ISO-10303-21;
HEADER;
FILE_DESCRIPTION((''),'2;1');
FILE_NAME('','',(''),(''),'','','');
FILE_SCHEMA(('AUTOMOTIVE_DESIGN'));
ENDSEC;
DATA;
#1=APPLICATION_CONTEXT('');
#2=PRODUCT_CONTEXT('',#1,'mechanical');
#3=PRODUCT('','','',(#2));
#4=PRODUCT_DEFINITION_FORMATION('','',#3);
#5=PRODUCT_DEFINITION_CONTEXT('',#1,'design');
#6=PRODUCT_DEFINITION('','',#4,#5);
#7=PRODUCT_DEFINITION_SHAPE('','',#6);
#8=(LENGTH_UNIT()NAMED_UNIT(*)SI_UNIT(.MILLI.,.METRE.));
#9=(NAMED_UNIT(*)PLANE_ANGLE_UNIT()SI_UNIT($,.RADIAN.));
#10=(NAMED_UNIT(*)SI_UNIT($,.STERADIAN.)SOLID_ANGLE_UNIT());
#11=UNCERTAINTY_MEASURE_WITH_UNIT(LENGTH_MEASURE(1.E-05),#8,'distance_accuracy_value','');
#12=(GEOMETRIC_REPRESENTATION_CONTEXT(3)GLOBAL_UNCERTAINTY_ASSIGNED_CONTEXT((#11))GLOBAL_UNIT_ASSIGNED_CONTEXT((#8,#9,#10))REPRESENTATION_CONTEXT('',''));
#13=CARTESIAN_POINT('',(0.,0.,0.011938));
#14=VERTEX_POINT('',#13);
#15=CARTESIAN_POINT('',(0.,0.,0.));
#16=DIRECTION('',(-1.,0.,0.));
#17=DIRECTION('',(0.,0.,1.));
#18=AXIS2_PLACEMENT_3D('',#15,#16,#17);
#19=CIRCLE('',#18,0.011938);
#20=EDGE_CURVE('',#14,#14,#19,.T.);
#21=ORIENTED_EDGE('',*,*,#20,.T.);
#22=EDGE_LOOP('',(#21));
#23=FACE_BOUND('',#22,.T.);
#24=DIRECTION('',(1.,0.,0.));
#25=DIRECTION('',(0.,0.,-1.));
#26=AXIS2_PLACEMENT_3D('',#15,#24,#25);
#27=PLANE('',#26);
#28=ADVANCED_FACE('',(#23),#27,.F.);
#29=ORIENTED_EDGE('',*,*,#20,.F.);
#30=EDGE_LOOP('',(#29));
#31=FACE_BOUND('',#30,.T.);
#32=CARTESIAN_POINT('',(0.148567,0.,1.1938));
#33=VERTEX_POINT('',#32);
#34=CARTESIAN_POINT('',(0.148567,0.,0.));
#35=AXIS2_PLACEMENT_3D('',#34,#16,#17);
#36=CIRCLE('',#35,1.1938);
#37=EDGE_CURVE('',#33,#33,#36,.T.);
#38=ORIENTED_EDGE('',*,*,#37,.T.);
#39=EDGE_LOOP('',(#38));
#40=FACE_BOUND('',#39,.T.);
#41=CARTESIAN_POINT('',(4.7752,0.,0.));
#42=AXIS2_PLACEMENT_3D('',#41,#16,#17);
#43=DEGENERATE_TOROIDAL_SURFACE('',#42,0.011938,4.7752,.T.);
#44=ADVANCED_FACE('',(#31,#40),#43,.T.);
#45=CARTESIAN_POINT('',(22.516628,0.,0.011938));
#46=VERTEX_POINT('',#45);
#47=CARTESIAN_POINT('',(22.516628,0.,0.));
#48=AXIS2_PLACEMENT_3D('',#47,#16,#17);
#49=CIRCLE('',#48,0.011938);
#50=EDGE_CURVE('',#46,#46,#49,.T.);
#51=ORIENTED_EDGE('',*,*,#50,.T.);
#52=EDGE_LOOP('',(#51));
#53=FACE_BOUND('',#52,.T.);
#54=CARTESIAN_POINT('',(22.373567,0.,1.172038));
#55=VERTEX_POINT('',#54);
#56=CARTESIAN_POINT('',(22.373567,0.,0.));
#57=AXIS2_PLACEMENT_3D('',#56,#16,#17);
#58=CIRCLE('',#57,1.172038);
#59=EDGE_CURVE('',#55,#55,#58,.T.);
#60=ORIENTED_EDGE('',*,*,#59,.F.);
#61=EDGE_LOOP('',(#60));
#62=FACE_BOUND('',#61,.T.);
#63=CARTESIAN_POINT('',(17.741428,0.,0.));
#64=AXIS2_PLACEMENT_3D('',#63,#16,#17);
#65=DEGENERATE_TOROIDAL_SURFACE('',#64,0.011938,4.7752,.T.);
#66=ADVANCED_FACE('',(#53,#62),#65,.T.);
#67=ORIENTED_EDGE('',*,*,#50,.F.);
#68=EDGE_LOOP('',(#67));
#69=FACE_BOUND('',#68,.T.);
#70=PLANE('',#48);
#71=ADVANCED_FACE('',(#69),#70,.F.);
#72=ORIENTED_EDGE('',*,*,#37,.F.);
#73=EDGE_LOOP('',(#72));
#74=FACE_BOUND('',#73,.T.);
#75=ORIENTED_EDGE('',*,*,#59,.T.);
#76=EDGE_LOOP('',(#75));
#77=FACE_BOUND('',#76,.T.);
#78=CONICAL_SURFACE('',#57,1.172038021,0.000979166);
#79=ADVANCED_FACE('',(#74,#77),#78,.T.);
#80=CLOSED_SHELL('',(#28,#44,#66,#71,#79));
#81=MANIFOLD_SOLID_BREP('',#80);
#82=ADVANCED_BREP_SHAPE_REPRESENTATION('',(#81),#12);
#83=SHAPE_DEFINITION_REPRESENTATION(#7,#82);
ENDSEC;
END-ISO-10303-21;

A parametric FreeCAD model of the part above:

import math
import FreeCAD as App
import Part
import Sketcher
from FreeCAD import Vector
Q = App.Units.Quantity

doc = App.newDocument("Part")
body = doc.addObject("PartDesign::Body", "Body")

sketch1 = body.newObject("Sketcher::SketchObject", "Sketch")
sketch1.AttachmentSupport = (doc.getObject("XY_Plane"), [""])
sketch1.MapMode = "FlatFace"
sketch1.addGeometry([
    Part.LineSegment(Vector(0, 0.012, 0), Vector(0, 0, 0)),
    Part.LineSegment(Vector(0, 0, 0), Vector(22.517, 0, 0)),
    Part.LineSegment(Vector(22.517, 0, 0), Vector(22.517, 0.012, 0)),
    Part.ArcOfCircle(Part.Circle(Vector(17.741, 0.012, 0), Vector(0, 0, 1), 4.775), math.radians(0), math.radians(14.06)),
    Part.LineSegment(Vector(22.374, 1.172, 0), Vector(0.149, 1.194, 0)),
    Part.ArcOfCircle(Part.Circle(Vector(4.775, 0.012, 0), Vector(0, 0, 1), 4.775), math.radians(165.67), math.radians(180)),
], False)
sketch1.addConstraint([
    Sketcher.Constraint("Coincident", 0, 2, 1, 1),
    Sketcher.Constraint("Coincident", 1, 2, 2, 1),
    Sketcher.Constraint("Tangent", 2, 2, 3, 1),
    Sketcher.Constraint("Coincident", 3, 2, 4, 1),
    Sketcher.Constraint("Coincident", 4, 2, 5, 1),
    Sketcher.Constraint("Tangent", 5, 2, 0, 1),
    Sketcher.Constraint("Vertical", 0),
    Sketcher.Constraint("Horizontal", 1),
    Sketcher.Constraint("Vertical", 2),
    Sketcher.Constraint("Coincident", 0, 2, -1, 1),
    Sketcher.Constraint("Equal", 3, 5),
    Sketcher.Constraint("Horizontal", 3, 3, 5, 3),
    Sketcher.Constraint("Radius", 3, Q("0.188 in")),
    Sketcher.Constraint("DistanceY", -1, 1, 4, 2, Q("0.047 in")),
    Sketcher.Constraint("DistanceX", 4, 2, 3, 2, Q("0.875 in")),
    Sketcher.Constraint("DistanceX", 1, 1, 1, 2, Q("22.516628 mm")),
    Sketcher.Constraint("DistanceY", 0, 2, 0, 1, Q("0.011938 mm")),
])
revolution = body.newObject("PartDesign::Revolution", "Revolution")
revolution.Profile = sketch1
revolution.ReferenceAxis = (sketch1, ["H_Axis"])
revolution.Angle = 360

doc.recompute()
